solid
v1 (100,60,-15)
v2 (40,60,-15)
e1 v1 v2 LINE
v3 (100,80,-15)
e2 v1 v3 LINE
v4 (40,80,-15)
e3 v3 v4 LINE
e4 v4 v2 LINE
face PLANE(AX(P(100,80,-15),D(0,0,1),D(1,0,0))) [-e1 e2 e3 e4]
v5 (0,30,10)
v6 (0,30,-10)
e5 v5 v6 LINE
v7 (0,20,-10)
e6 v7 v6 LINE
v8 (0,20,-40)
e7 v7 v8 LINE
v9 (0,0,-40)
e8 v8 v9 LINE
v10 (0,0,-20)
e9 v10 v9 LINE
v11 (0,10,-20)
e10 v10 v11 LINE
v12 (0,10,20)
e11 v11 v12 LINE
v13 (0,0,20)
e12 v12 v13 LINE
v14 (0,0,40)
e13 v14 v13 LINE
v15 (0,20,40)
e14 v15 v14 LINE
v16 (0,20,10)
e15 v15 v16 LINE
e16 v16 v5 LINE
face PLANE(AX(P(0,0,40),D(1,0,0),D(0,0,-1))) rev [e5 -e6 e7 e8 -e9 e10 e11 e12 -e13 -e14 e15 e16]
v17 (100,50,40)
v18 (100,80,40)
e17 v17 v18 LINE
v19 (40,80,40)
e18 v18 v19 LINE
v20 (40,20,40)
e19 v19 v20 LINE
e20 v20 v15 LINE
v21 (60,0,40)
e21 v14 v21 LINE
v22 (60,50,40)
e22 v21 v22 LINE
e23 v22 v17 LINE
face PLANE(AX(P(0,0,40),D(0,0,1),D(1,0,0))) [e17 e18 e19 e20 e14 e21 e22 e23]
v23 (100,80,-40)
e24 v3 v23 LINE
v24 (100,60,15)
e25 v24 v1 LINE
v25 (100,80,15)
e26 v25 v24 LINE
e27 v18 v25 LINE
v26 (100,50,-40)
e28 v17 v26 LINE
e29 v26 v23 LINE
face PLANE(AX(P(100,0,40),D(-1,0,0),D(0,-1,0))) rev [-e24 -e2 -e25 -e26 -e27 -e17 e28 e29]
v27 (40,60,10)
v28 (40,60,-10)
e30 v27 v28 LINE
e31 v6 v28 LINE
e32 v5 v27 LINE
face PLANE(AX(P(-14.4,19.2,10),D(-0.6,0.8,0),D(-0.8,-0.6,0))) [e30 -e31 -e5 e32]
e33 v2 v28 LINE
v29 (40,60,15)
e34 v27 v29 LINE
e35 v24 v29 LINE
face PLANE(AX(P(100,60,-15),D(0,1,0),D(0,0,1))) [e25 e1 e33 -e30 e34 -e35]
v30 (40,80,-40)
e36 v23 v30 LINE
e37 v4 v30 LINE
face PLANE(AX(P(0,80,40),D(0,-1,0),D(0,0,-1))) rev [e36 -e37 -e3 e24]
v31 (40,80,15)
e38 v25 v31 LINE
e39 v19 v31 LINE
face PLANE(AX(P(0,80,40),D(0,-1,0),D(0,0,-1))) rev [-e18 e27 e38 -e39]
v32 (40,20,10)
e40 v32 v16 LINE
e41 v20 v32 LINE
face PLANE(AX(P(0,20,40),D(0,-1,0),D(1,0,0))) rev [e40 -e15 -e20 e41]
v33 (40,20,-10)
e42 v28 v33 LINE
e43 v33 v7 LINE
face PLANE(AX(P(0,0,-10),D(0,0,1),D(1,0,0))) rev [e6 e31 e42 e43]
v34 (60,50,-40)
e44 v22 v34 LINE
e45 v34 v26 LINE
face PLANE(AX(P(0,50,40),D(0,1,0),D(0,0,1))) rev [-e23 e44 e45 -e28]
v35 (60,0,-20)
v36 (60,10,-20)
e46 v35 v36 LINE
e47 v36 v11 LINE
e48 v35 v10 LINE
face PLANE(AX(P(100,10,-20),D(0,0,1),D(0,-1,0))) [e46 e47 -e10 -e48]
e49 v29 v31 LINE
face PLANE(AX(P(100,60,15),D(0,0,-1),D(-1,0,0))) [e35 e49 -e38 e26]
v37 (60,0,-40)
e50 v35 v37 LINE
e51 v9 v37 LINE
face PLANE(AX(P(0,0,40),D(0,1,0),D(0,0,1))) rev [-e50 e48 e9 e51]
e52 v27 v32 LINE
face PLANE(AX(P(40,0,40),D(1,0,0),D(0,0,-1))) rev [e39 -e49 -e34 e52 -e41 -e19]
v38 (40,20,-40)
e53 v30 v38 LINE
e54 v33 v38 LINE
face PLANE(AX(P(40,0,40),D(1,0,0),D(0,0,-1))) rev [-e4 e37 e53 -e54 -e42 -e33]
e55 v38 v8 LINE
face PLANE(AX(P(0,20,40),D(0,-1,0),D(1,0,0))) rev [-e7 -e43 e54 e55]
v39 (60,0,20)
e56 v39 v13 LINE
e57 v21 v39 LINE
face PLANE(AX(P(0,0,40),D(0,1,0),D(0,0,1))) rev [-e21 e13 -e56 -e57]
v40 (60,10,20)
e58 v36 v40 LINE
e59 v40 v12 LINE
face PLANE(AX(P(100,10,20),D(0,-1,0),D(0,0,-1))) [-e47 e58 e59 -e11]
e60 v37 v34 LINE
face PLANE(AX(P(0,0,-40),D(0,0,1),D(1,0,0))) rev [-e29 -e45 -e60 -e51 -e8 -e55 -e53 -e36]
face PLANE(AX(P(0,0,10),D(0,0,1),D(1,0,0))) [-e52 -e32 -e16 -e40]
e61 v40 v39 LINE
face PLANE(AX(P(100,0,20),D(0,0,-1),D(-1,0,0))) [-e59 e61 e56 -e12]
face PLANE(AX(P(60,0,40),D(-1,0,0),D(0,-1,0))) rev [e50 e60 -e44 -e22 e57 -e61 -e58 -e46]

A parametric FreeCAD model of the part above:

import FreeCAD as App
import Part
import Sketcher

V = App.Vector
Q = App.Units.Quantity

doc = App.newDocument("Part")
body = doc.addObject("PartDesign::Body", "Body")

# Sketch on XY plane
sketch1 = body.newObject("Sketcher::SketchObject", "Sketch")
sketch1.AttachmentSupport = (doc.getObject("XY_Plane"), [""])
sketch1.MapMode = "FlatFace"
sketch1.addGeometry([
    Part.LineSegment(V(40, 20, 0), V(0, 20, 0)),  # 0
    Part.LineSegment(V(0, 20, 0), V(0, 0, 0)),  # 1
    Part.LineSegment(V(0, 0, 0), V(60, 0, 0)),  # 2
    Part.LineSegment(V(60, 0, 0), V(60, 50, 0)),  # 3
    Part.LineSegment(V(60, 50, 0), V(100, 50, 0)),  # 4
    Part.LineSegment(V(100, 50, 0), V(100, 80, 0)),  # 5
    Part.LineSegment(V(100, 80, 0), V(40, 80, 0)),  # 6
    Part.LineSegment(V(40, 80, 0), V(40, 20, 0)),  # 7
], False)
sketch1.addConstraint([
    Sketcher.Constraint("Coincident", 0, 2, 1, 1),
    Sketcher.Constraint("Coincident", 1, 2, 2, 1),
    Sketcher.Constraint("Coincident", 2, 2, 3, 1),
    Sketcher.Constraint("Coincident", 3, 2, 4, 1),
    Sketcher.Constraint("Coincident", 4, 2, 5, 1),
    Sketcher.Constraint("Coincident", 5, 2, 6, 1),
    Sketcher.Constraint("Coincident", 6, 2, 7, 1),
    Sketcher.Constraint("Coincident", 7, 2, 0, 1),
    Sketcher.Constraint("Horizontal", 0),
    Sketcher.Constraint("Vertical", 1),
    Sketcher.Constraint("Horizontal", 2),
    Sketcher.Constraint("Vertical", 3),
    Sketcher.Constraint("Horizontal", 4),
    Sketcher.Constraint("Vertical", 5),
    Sketcher.Constraint("Horizontal", 6),
    Sketcher.Constraint("Vertical", 7),
    Sketcher.Constraint("Coincident", 1, 2, -1, 1),
    Sketcher.Constraint("Equal", 0, 4),
    Sketcher.Constraint("Equal", 6, 7),
    Sketcher.Constraint("DistanceX", 0, 2, 0, 1, Q("40 mm")),
    Sketcher.Constraint("DistanceX", 2, 1, 2, 2, Q("60 mm")),
    Sketcher.Constraint("DistanceY", 1, 2, 1, 1, Q("20 mm")),
    Sketcher.Constraint("DistanceY", 3, 1, 3, 2, Q("50 mm")),
])
pad1 = body.newObject("PartDesign::Pad", "Pad")
pad1.Profile = sketch1
pad1.Length = 80
pad1.Midplane = True

# Sketch on XY plane
sketch2 = body.newObject("Sketcher::SketchObject", "Sketch001")
sketch2.AttachmentSupport = (doc.getObject("XY_Plane"), [""])
sketch2.MapMode = "FlatFace"
sketch2.addGeometry([
    Part.LineSegment(V(0, 30, 0), V(0, 20, 0)),
    Part.LineSegment(V(0, 20, 0), V(40, 20, 0)),
    Part.LineSegment(V(40, 20, 0), V(40, 60, 0)),
    Part.LineSegment(V(40, 60, 0), V(0, 30, 0)),
], False)
sketch2.addConstraint([
    Sketcher.Constraint("Coincident", 0, 2, 1, 1),
    Sketcher.Constraint("Coincident", 1, 2, 2, 1),
    Sketcher.Constraint("Coincident", 2, 2, 3, 1),
    Sketcher.Constraint("Coincident", 3, 2, 0, 1),
    Sketcher.Constraint("Vertical", 0),
    Sketcher.Constraint("Horizontal", 1),
    Sketcher.Constraint("Vertical", 2),
    Sketcher.Constraint("PointOnObject", 0, 2, -2),
    Sketcher.Constraint("Equal", 1, 2),
    Sketcher.Constraint("DistanceX", 1, 1, 1, 2, Q("40 mm")),
    Sketcher.Constraint("DistanceY", 0, 2, 0, 1, Q("10 mm")),
    Sketcher.Constraint("DistanceY", -1, 1, 0, 2, Q("20 mm")),
])
pad2 = body.newObject("PartDesign::Pad", "Pad001")
pad2.Profile = sketch2
pad2.Length = 20
pad2.Midplane = True

# Sketch on YZ plane
sketch3 = body.newObject("Sketcher::SketchObject", "Sketch002")
sketch3.AttachmentSupport = (doc.getObject("YZ_Plane"), [""])
sketch3.MapMode = "FlatFace"
sketch3.addGeometry([
    Part.LineSegment(V(10, 20, 0), V(0, 20, 0)),  # 0
    Part.LineSegment(V(0, 20, 0), V(0, -20, 0)),  # 1
    Part.LineSegment(V(0, -20, 0), V(10, -20, 0)),  # 2
    Part.LineSegment(V(10, -20, 0), V(10, 20, 0)),  # 3
    Part.LineSegment(V(80, 15, 0), V(60, 15, 0)),  # 4
    Part.LineSegment(V(60, 15, 0), V(60, -15, 0)),  # 5
    Part.LineSegment(V(60, -15, 0), V(80, -15, 0)),  # 6
    Part.LineSegment(V(80, -15, 0), V(80, 15, 0)),  # 7
], False)
sketch3.addConstraint([
    Sketcher.Constraint("Coincident", 0, 2, 1, 1),
    Sketcher.Constraint("Coincident", 1, 2, 2, 1),
    Sketcher.Constraint("Coincident", 2, 2, 3, 1),
    Sketcher.Constraint("Coincident", 3, 2, 0, 1),
    Sketcher.Constraint("Coincident", 4, 2, 5, 1),
    Sketcher.Constraint("Coincident", 5, 2, 6, 1),
    Sketcher.Constraint("Coincident", 6, 2, 7, 1),
    Sketcher.Constraint("Coincident", 7, 2, 4, 1),
    Sketcher.Constraint("Horizontal", 0),
    Sketcher.Constraint("Vertical", 1),
    Sketcher.Constraint("Horizontal", 2),
    Sketcher.Constraint("Vertical", 3),
    Sketcher.Constraint("Horizontal", 4),
    Sketcher.Constraint("Vertical", 5),
    Sketcher.Constraint("Horizontal", 6),
    Sketcher.Constraint("Vertical", 7),
    Sketcher.Constraint("Symmetric", 0, 2, 1, 2, -1, 1),
    Sketcher.Constraint("DistanceX", 0, 2, 0, 1, Q("10 mm")),
    Sketcher.Constraint("DistanceX", 4, 2, 4, 1, Q("20 mm")),
    Sketcher.Constraint("DistanceY", 1, 2, 1, 1, Q("40 mm")),
    Sketcher.Constraint("DistanceY", 5, 2, 5, 1, Q("30 mm")),
    Sketcher.Constraint("DistanceX", -1, 1, 4, 2, Q("60 mm")),
    Sketcher.Constraint("DistanceY", -1, 1, 4, 2, Q("15 mm")),
])
pocket1 = body.newObject("PartDesign::Pocket", "Pocket")
pocket1.Profile = sketch3
pocket1.Type = "ThroughAll"
pocket1.Reversed = True

doc.recompute()
